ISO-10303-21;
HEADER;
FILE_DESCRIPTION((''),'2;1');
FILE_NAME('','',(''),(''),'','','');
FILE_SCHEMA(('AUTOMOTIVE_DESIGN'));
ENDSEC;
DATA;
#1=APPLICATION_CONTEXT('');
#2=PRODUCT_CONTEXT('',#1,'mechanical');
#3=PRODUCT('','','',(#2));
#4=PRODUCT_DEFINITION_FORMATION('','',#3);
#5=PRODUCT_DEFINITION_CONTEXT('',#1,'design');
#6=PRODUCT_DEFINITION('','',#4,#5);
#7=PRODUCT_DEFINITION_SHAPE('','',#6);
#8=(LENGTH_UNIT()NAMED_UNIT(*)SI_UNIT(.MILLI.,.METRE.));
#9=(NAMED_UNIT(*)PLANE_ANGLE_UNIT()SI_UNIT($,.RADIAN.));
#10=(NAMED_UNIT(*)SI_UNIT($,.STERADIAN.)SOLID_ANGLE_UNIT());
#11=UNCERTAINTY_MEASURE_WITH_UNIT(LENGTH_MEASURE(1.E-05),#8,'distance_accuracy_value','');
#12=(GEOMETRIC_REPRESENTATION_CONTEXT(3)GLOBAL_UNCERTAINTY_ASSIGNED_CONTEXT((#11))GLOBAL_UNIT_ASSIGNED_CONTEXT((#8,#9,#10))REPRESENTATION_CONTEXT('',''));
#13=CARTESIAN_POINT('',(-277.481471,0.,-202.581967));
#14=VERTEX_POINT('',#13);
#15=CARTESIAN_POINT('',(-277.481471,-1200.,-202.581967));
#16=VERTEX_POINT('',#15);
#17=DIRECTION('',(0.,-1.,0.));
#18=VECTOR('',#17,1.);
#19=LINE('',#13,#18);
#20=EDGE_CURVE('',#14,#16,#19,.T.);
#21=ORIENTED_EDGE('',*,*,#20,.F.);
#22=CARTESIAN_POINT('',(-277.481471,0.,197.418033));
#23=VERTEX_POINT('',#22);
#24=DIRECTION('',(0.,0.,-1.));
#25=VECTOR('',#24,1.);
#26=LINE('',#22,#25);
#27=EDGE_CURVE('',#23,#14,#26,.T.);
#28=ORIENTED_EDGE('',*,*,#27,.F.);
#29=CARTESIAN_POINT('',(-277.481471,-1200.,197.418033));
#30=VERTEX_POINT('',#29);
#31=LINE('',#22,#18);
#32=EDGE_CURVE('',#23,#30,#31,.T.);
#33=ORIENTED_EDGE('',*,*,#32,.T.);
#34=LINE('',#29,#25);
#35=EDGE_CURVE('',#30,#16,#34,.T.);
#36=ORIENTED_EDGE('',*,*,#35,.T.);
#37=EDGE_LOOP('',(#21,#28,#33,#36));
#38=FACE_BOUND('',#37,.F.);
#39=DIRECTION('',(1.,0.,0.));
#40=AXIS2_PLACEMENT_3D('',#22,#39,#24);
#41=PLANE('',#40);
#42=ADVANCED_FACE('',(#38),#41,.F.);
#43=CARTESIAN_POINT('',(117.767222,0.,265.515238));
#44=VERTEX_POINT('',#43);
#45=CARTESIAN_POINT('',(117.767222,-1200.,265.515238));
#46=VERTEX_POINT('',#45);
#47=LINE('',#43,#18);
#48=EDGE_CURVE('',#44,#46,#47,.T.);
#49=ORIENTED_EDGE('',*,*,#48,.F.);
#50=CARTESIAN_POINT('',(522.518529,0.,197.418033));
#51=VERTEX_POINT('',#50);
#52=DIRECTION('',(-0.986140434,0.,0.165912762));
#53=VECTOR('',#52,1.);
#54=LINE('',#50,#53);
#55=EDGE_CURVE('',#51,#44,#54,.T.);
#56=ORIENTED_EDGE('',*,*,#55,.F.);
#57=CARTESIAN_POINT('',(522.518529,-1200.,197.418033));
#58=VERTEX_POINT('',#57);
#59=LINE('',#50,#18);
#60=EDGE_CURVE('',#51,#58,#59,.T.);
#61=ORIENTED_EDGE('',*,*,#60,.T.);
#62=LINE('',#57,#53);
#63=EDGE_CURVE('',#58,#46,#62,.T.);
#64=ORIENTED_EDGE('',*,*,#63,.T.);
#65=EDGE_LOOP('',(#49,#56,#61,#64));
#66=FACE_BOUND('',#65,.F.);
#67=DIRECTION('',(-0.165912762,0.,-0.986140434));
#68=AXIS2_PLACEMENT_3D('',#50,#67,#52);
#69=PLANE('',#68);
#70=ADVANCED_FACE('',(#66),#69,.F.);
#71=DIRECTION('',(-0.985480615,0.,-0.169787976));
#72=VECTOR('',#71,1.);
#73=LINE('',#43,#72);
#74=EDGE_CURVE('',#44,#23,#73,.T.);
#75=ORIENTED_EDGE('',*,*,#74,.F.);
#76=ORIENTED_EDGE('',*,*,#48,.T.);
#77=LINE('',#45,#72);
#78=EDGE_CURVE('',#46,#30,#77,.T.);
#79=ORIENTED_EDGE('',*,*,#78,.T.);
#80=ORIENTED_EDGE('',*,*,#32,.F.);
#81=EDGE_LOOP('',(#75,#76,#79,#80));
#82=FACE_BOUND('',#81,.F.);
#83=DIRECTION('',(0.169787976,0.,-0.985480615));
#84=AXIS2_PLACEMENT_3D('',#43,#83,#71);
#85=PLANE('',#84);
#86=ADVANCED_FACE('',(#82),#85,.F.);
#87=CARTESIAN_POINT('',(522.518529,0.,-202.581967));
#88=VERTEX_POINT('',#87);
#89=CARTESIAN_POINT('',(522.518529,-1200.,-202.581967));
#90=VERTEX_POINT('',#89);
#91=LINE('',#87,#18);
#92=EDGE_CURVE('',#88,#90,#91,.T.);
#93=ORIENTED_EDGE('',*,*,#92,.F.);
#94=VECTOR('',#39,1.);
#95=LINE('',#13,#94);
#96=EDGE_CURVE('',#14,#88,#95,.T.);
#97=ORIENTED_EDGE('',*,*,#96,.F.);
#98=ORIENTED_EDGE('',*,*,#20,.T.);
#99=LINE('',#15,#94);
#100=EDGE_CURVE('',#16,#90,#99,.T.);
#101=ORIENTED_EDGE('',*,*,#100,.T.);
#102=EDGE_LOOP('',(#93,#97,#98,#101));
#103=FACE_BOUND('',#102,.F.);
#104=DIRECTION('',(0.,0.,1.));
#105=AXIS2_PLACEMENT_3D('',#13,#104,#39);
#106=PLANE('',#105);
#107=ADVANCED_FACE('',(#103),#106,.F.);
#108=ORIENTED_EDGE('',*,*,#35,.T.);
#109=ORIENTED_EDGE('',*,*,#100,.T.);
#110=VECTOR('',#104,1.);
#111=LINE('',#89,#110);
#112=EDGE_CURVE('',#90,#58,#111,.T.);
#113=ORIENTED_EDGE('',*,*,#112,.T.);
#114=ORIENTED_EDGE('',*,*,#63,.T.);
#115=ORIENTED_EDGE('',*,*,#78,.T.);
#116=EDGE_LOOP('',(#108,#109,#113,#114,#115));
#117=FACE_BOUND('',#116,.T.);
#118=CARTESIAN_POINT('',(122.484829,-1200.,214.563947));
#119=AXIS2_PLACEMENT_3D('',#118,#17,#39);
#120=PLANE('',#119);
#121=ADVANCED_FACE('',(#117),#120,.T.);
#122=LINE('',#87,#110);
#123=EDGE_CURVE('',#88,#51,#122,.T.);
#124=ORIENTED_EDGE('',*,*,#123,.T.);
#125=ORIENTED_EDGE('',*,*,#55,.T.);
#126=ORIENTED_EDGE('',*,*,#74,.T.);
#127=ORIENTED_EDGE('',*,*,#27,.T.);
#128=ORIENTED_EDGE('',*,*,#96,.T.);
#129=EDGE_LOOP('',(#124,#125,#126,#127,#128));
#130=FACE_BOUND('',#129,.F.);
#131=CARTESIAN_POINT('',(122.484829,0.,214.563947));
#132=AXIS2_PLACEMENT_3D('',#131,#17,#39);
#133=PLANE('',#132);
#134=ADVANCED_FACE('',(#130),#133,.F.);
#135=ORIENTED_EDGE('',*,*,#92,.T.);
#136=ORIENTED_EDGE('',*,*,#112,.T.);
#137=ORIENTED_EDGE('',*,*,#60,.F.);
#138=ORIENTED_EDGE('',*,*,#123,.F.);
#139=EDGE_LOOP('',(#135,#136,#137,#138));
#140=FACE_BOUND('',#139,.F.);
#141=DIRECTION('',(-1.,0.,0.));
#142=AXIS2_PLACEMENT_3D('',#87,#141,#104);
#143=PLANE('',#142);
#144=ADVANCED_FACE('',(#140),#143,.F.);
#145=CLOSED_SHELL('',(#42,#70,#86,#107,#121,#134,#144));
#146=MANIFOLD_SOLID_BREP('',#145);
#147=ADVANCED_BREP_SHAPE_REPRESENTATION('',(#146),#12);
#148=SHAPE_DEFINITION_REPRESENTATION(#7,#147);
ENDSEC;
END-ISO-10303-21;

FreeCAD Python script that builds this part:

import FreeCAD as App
import Part
import Sketcher
from FreeCAD import Vector
Q = App.Units.Quantity


def add_polygon(sketch, points):
    """Adds a closed chain of lines whose ends are joined by coincident constraints."""
    first, n = sketch.GeometryCount, len(points)
    for a, b in zip(points, points[1:] + points[:1]):
        sketch.addGeometry(Part.LineSegment(App.Vector(*a, 0), App.Vector(*b, 0)), False)
    for i in range(n):
        sketch.addConstraint(Sketcher.Constraint("Coincident", first + i, 2, first + (i + 1) % n, 1))

doc = App.newDocument("Part")
body = doc.addObject("PartDesign::Body", "Body")

sketch1 = body.newObject("Sketcher::SketchObject", "Sketch")
sketch1.AttachmentSupport = (doc.getObject("XZ_Plane"), [""])
sketch1.MapMode = "FlatFace"
add_polygon(sketch1, [(118, 266), (-277, 197), (-277, -203), (523, -203), (523, 197)])
sketch1.addConstraint([
    Sketcher.Constraint("Vertical", 1),
    Sketcher.Constraint("Horizontal", 2),
    Sketcher.Constraint("Vertical", 3),
    Sketcher.Constraint("Horizontal", 0, 2, 3, 2),
    Sketcher.Constraint("DistanceX", 2, 1, 2, 2, Q("800 mm")),
    Sketcher.Constraint("DistanceY", 1, 2, 1, 1, Q("400 mm")),
    Sketcher.Constraint("Distance", 0, Q("401.072012 mm")),
    Sketcher.Constraint("DistanceX", 0, 2, -1, 1, Q("277.481471 mm")),
    Sketcher.Constraint("DistanceY", -1, 1, 4, 2, Q("265.515238 mm")),
    Sketcher.Constraint("Distance", 4, Q("410.439825 mm")),
])
pad1 = body.newObject("PartDesign::Pad", "Pad")
pad1.Profile = sketch1
pad1.Length = 1200

doc.recompute()
